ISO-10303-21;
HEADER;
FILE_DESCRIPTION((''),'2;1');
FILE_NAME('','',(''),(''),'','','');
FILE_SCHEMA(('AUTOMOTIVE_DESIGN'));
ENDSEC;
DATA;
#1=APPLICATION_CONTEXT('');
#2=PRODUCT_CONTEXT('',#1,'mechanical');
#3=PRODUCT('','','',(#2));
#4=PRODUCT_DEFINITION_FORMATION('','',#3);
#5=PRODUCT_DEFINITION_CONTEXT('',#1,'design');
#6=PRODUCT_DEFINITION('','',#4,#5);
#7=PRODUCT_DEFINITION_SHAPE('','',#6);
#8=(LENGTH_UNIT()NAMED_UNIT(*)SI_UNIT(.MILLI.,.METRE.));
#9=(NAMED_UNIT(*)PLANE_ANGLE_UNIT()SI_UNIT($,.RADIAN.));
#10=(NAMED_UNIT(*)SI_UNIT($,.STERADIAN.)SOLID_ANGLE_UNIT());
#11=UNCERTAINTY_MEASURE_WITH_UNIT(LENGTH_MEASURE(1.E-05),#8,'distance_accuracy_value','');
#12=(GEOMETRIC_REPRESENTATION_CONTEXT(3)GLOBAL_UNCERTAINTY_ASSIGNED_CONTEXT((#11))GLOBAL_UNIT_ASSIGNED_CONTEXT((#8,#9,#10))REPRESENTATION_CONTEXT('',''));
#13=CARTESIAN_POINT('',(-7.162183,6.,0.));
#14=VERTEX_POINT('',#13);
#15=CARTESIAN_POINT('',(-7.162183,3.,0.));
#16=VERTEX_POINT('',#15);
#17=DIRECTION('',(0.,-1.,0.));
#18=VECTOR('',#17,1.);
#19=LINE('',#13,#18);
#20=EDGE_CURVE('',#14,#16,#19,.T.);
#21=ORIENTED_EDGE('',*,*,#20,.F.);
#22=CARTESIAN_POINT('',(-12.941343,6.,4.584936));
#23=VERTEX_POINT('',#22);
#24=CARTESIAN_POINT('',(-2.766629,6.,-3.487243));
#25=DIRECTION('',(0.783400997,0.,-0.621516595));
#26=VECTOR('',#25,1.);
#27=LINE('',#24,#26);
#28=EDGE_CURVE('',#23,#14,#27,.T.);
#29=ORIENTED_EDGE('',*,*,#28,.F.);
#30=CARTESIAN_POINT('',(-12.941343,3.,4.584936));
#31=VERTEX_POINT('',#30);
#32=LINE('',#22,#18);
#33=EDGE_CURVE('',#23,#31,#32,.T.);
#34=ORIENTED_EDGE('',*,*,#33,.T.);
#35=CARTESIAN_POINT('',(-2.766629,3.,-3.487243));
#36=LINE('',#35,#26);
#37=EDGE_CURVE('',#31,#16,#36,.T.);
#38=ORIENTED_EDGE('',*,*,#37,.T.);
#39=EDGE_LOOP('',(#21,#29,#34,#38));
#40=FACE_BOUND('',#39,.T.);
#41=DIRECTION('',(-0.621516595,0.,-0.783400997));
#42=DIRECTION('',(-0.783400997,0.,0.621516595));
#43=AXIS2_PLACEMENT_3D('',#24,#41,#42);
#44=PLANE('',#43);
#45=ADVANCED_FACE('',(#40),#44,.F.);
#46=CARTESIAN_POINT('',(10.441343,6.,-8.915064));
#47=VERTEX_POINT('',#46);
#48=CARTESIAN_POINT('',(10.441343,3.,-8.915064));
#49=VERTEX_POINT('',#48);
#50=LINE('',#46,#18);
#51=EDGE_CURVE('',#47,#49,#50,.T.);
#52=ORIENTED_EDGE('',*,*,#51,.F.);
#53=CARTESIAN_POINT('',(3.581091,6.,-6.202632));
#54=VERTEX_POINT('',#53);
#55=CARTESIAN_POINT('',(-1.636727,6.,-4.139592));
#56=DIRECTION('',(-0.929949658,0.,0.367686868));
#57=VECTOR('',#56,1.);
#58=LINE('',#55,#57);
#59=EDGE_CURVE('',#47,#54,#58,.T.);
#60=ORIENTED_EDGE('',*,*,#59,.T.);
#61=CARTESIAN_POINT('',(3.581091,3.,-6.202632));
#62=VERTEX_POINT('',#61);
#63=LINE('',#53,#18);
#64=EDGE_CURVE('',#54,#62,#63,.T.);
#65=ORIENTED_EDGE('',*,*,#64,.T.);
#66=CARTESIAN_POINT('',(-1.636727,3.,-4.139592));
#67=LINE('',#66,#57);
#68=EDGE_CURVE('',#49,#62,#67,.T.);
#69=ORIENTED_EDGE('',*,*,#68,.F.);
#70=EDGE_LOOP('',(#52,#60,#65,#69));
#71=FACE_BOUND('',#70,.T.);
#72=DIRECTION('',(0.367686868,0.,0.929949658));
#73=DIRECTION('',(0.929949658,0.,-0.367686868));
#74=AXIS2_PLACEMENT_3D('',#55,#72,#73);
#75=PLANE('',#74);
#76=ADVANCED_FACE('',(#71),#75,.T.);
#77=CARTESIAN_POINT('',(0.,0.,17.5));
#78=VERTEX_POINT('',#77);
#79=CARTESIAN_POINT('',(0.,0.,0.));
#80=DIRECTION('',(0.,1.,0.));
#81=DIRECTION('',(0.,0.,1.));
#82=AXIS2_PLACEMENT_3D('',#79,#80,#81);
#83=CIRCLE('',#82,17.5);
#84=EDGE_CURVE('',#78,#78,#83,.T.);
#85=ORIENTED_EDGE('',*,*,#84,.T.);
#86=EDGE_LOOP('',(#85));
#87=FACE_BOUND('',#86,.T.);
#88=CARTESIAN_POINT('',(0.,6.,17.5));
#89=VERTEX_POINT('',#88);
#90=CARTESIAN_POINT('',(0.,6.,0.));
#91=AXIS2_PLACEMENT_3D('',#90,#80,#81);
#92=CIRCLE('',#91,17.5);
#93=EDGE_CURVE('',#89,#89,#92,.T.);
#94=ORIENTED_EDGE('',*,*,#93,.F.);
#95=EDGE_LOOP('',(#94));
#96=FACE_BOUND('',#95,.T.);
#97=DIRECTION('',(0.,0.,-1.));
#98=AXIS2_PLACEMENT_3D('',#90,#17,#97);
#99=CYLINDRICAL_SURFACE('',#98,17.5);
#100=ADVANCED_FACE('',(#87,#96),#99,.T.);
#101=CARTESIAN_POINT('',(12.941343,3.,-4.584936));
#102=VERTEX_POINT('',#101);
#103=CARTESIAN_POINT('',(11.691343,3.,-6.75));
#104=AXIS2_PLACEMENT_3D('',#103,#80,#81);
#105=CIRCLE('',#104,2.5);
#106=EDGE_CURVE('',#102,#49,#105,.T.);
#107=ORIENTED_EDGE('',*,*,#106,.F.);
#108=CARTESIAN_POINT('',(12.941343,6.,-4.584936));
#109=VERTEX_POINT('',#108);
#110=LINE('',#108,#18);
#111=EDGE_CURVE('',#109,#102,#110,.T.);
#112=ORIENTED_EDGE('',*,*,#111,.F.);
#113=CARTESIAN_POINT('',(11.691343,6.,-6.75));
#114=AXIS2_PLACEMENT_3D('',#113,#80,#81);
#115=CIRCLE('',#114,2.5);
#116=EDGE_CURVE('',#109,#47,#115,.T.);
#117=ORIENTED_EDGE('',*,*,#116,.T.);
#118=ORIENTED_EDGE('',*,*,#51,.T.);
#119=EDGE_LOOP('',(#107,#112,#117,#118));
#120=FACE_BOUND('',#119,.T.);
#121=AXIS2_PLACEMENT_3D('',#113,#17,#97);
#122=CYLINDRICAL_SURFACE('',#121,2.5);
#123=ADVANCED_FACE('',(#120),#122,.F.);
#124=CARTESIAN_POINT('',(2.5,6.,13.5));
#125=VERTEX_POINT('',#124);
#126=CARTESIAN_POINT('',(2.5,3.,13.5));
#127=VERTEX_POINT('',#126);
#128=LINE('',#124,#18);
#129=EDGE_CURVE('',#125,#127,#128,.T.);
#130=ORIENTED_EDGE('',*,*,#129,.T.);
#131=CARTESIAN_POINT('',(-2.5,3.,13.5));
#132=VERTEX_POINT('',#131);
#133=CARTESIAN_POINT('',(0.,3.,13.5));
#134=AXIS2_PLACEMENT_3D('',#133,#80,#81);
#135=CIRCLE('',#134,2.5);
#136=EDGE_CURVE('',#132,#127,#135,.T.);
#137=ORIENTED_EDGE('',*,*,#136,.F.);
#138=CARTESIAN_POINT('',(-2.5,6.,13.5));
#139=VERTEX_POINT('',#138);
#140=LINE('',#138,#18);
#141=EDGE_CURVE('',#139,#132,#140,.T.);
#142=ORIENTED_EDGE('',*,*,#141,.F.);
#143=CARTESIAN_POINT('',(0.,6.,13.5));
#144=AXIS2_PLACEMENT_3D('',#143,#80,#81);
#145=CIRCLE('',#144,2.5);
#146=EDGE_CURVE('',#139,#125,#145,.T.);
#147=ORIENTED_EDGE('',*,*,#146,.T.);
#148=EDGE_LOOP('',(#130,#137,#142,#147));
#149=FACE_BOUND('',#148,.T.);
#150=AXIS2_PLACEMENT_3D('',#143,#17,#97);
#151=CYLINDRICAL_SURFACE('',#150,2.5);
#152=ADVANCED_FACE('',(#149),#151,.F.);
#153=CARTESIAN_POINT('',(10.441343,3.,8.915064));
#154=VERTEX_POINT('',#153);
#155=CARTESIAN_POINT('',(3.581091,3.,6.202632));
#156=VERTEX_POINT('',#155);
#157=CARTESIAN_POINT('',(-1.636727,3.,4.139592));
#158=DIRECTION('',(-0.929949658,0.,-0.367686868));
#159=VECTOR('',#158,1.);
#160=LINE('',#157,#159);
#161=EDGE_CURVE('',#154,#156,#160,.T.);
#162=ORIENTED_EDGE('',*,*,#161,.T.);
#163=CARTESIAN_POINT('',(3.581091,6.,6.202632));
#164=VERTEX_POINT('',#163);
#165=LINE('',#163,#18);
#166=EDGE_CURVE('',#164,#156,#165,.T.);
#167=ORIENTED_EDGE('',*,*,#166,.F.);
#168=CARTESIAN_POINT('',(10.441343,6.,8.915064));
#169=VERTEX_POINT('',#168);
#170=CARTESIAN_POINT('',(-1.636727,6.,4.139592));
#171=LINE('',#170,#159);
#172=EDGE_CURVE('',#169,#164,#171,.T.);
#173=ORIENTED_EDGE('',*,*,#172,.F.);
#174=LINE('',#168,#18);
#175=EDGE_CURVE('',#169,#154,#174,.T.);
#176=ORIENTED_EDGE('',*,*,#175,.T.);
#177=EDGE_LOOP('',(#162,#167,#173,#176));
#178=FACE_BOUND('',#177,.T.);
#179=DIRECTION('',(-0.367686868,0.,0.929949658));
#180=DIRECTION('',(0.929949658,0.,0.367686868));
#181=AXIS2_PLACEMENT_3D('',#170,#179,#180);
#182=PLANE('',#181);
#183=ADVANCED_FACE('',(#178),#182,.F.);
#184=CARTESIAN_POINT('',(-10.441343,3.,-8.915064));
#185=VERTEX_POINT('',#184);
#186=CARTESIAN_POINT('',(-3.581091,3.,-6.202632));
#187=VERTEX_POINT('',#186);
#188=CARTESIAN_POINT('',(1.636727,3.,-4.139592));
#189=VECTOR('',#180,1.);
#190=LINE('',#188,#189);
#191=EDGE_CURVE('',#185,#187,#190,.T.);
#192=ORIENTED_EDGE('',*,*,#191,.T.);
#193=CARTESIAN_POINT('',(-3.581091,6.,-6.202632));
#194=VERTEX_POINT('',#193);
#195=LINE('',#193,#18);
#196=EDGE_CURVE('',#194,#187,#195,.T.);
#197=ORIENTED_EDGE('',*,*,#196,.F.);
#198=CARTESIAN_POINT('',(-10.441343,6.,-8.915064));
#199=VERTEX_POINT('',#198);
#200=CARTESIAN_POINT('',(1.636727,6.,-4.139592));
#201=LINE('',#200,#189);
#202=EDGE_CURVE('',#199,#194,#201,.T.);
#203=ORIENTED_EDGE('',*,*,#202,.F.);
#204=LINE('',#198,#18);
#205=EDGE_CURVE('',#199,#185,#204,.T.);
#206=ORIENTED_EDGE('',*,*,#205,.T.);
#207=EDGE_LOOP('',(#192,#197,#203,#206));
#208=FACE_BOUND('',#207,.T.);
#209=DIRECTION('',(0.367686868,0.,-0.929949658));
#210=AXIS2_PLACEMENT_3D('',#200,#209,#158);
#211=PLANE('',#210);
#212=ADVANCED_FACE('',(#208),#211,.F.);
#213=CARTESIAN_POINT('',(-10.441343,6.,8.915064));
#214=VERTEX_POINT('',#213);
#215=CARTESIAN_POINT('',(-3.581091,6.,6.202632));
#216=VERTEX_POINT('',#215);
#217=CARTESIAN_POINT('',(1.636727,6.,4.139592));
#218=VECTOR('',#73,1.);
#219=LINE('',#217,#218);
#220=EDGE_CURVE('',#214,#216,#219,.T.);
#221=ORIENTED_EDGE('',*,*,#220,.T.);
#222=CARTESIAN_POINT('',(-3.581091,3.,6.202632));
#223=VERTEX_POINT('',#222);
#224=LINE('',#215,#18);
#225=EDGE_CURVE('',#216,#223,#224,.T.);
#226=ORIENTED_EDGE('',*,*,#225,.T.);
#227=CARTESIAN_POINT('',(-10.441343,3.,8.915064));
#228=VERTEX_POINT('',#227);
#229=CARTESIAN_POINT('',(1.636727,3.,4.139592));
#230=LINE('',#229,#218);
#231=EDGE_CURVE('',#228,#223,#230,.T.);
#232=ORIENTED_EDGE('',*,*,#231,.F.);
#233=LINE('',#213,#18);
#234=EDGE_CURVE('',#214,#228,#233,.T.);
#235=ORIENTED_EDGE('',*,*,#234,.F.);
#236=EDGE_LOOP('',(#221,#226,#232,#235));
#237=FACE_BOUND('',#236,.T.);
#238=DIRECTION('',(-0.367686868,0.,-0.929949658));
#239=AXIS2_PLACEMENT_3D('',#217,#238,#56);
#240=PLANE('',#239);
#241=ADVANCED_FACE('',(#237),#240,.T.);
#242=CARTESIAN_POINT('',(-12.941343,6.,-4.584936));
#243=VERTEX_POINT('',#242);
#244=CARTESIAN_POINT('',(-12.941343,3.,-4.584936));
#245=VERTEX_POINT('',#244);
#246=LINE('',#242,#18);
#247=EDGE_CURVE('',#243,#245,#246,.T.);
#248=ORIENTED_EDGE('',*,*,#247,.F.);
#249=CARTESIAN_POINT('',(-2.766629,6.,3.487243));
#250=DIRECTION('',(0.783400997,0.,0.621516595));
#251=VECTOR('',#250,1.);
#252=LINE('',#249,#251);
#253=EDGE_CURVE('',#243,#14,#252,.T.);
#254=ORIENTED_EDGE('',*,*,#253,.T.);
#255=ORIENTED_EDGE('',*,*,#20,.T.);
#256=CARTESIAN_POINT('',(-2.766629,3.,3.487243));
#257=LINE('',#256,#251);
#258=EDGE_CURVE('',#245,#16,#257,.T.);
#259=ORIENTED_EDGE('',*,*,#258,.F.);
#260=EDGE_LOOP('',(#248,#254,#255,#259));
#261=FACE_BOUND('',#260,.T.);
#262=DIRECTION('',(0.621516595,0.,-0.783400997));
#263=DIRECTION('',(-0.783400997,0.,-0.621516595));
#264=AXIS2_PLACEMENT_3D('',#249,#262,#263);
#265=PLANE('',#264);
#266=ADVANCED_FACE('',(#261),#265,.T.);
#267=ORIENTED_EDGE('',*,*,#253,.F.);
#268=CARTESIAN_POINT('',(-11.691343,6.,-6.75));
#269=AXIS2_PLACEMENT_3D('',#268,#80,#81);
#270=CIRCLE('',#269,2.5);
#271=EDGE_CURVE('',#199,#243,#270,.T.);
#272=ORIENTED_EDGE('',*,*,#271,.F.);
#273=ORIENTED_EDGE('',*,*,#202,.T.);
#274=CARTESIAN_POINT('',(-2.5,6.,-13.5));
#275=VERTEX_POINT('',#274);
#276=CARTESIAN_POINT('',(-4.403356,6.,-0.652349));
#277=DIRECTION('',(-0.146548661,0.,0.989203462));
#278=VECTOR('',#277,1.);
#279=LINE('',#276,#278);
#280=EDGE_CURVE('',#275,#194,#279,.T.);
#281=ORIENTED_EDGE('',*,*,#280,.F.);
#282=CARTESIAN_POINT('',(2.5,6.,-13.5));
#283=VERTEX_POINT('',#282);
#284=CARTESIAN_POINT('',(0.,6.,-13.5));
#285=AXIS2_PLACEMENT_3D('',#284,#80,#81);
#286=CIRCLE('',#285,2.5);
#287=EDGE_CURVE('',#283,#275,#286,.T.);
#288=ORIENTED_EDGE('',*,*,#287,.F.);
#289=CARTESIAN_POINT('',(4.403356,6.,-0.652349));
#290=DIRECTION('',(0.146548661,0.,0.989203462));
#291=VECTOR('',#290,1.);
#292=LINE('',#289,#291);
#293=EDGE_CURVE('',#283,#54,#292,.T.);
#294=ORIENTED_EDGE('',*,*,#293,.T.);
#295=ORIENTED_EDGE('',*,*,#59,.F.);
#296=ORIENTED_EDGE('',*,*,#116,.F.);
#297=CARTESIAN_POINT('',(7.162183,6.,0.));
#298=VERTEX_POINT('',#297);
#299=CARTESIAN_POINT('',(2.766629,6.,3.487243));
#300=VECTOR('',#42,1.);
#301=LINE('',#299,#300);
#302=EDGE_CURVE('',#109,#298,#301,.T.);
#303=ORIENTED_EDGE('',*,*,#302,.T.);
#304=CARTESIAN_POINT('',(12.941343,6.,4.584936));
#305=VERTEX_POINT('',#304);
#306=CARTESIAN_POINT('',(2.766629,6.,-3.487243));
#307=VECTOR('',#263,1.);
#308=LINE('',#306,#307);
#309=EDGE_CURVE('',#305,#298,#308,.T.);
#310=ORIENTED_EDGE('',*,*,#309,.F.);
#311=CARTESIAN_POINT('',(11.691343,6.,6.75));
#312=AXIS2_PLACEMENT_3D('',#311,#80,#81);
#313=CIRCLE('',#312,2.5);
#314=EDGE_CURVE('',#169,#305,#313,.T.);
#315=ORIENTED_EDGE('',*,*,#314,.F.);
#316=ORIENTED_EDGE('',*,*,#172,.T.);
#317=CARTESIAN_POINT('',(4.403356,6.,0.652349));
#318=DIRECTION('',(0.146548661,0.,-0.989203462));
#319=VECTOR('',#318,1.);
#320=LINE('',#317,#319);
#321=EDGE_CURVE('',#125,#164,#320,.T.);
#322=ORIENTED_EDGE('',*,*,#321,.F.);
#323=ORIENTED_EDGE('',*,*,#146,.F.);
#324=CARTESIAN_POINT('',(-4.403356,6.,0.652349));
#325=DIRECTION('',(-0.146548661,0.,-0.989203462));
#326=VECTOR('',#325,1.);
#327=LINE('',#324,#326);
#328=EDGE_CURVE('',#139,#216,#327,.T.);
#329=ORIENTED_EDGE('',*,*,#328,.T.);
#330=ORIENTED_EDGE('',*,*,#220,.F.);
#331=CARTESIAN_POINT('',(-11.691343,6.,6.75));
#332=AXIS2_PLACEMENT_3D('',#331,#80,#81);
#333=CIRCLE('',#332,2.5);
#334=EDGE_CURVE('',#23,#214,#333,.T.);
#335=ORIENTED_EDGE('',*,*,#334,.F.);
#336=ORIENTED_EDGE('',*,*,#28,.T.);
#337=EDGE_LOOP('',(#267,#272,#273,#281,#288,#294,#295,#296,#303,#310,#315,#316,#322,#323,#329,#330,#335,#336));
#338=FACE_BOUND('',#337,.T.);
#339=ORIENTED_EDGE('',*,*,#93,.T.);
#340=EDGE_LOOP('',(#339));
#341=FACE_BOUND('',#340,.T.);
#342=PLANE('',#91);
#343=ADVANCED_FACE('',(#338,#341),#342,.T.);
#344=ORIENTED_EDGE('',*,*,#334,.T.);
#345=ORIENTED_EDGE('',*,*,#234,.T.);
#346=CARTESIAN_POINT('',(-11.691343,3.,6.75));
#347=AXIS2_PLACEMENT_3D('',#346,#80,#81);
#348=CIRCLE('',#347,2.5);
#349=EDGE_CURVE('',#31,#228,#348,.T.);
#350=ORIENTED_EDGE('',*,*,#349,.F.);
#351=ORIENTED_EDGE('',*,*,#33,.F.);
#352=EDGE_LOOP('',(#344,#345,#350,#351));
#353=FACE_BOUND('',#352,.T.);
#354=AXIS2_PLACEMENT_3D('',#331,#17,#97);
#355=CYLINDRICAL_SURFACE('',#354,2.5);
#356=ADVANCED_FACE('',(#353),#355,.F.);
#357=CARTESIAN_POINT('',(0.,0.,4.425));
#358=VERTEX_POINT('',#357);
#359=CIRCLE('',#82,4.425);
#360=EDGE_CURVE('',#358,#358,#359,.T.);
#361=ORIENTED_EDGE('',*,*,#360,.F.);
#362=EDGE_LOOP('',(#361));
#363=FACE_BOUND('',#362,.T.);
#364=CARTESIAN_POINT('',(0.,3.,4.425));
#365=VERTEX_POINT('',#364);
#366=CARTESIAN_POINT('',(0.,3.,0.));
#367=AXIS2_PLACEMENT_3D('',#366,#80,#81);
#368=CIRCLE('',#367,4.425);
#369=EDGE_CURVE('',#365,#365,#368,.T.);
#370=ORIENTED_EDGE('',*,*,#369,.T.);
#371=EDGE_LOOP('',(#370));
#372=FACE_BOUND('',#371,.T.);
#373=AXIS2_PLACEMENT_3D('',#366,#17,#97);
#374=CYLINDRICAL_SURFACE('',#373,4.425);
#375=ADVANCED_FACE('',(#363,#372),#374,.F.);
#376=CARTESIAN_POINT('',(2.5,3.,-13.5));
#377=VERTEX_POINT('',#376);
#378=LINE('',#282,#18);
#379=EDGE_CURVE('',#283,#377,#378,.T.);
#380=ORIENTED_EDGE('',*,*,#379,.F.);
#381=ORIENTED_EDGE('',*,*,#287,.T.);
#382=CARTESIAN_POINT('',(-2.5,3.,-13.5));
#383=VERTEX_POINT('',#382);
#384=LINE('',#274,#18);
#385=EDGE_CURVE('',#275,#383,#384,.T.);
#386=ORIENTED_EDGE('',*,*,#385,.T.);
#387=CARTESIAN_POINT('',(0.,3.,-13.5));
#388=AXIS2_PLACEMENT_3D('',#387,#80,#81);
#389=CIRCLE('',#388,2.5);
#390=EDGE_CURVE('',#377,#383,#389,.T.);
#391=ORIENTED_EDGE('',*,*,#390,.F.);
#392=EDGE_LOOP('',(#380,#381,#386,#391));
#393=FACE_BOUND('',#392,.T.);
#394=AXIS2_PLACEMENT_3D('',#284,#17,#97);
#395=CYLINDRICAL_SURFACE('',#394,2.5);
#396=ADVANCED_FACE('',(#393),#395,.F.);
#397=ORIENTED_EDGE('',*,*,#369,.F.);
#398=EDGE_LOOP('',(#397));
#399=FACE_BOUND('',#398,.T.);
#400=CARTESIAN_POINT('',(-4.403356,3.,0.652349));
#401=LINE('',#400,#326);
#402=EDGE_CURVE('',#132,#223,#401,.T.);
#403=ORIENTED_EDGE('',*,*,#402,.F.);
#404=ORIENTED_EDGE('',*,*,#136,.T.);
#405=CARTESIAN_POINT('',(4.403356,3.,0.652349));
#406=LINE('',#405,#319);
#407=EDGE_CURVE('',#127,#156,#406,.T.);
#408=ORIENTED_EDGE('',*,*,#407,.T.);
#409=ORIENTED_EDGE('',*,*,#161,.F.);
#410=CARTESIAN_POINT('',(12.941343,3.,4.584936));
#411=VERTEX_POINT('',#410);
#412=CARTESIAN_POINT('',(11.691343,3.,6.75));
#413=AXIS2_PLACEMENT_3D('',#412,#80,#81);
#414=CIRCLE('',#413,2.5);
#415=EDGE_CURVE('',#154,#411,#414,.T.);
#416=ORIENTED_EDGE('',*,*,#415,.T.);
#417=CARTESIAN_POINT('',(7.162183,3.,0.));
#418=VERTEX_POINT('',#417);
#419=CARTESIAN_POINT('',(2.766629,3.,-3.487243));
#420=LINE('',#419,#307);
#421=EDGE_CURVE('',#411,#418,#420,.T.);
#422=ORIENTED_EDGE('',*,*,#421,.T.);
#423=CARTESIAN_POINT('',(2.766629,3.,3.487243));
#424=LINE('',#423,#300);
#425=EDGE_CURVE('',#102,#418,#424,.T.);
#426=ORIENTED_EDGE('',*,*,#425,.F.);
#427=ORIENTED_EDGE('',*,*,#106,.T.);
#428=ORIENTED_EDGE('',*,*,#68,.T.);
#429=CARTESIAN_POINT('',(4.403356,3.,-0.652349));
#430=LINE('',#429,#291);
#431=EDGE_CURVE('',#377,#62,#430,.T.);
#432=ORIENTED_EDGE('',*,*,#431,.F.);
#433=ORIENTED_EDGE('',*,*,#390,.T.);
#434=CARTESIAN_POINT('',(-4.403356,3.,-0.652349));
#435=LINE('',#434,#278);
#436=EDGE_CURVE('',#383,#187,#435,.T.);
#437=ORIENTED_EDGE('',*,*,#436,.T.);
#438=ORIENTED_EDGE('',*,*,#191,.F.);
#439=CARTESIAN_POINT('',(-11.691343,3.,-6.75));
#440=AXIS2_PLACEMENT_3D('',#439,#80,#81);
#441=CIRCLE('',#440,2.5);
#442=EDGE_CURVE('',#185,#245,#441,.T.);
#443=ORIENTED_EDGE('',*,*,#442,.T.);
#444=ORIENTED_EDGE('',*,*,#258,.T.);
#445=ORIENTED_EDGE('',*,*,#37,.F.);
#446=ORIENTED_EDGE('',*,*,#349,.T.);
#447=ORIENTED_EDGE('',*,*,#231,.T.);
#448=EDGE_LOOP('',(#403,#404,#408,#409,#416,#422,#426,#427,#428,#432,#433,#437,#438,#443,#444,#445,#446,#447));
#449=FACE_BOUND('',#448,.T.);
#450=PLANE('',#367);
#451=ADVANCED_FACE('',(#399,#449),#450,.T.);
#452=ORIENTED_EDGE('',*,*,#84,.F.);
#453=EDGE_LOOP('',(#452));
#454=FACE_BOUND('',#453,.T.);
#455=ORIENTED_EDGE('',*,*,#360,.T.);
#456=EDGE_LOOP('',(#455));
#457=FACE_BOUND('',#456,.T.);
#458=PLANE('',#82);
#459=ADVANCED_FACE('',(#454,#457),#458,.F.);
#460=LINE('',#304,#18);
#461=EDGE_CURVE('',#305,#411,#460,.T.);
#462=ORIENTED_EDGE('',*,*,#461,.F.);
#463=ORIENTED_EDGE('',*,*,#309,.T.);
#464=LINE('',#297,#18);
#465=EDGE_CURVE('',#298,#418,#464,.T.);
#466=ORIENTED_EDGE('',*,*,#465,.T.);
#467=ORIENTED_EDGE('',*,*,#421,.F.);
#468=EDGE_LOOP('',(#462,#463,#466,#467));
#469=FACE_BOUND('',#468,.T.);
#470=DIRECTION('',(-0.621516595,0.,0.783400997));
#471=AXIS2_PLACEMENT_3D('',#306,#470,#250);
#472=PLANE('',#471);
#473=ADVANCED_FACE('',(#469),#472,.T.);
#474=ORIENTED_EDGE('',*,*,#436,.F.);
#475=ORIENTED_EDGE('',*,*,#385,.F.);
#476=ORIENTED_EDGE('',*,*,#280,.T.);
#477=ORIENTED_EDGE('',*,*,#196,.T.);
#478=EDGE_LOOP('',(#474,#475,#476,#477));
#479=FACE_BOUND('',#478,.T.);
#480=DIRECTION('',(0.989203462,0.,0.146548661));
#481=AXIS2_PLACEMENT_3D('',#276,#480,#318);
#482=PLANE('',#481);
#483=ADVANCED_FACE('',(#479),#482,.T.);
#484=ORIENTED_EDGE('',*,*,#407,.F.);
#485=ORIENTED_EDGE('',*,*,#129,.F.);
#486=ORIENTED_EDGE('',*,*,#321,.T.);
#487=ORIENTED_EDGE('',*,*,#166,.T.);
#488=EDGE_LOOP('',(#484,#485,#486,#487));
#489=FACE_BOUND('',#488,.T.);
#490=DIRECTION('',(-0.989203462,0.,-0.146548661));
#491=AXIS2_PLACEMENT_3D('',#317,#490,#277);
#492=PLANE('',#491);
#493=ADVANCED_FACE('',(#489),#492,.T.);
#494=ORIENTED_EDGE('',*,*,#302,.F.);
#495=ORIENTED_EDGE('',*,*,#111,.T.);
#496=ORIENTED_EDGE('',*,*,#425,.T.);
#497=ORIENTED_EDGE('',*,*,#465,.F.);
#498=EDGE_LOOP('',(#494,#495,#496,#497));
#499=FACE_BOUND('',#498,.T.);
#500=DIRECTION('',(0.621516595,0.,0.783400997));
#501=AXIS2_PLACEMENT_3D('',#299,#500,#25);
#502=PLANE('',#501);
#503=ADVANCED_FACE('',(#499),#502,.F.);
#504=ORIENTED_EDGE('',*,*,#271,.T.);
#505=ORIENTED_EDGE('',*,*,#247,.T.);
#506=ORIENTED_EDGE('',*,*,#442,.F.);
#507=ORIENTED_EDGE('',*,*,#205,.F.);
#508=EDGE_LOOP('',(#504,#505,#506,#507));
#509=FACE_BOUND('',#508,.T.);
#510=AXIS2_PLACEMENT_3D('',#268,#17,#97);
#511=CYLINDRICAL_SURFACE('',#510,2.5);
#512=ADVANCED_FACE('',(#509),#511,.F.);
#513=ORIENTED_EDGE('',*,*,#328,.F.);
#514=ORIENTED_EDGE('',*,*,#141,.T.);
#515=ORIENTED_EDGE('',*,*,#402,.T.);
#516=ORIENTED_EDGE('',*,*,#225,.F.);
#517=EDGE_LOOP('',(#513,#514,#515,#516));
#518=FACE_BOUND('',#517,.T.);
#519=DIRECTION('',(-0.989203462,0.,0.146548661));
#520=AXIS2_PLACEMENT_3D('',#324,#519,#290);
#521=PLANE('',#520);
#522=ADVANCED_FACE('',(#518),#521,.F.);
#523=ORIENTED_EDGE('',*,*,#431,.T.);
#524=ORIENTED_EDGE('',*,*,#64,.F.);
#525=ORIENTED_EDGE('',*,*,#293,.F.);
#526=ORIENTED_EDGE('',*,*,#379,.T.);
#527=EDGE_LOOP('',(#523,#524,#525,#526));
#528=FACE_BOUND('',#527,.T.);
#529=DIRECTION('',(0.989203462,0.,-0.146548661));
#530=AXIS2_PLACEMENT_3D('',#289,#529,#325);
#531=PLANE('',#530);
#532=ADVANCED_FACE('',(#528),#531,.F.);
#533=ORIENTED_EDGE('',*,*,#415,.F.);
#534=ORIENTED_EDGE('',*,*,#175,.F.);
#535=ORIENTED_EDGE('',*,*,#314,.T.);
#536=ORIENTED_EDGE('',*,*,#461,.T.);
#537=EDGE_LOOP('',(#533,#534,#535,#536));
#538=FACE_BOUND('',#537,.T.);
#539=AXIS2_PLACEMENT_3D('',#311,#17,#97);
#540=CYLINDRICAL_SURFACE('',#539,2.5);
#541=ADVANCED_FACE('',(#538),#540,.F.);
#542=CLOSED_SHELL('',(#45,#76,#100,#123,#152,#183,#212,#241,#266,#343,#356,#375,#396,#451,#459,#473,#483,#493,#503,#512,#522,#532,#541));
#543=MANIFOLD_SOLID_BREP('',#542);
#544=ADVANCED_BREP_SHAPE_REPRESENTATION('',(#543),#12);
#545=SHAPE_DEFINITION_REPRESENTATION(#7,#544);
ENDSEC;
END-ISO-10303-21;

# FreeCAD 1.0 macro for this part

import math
import FreeCAD as App
import Part
import Sketcher

doc = App.newDocument("Part")
body = doc.addObject("PartDesign::Body", "Body")

sketch1 = body.newObject("Sketcher::SketchObject", "Sketch")
sketch1.AttachmentSupport = (doc.getObject("XZ_Plane"), [""])
sketch1.MapMode = "FlatFace"
sketch1.addGeometry(Part.Circle(App.Vector(0, 0, 0), App.Vector(0, 0, 1), 17.5), False)
sketch1.addGeometry(Part.LineSegment(App.Vector(-3.581091, -6.202632, 0), App.Vector(-2.5, -13.5, 0)), False)
sketch1.addGeometry(Part.ArcOfCircle(Part.Circle(App.Vector(0, -13.5, 0), App.Vector(0, 0, 1), 2.5), math.radians(180), math.radians(270)), False)
sketch1.addGeometry(Part.ArcOfCircle(Part.Circle(App.Vector(0, -13.5, 0), App.Vector(0, 0, 1), 2.5), math.radians(-90), math.radians(0)), False)
sketch1.addGeometry(Part.LineSegment(App.Vector(2.5, -13.5, 0), App.Vector(3.581091, -6.202632, 0)), False)
sketch1.addGeometry(Part.LineSegment(App.Vector(3.581091, -6.202632, 0), App.Vector(10.441343, -8.915064, 0)), False)
sketch1.addGeometry(Part.ArcOfCircle(Part.Circle(App.Vector(11.691343, -6.75, 0), App.Vector(0, 0, 1), 2.5), math.radians(-120), math.radians(-30)), False)
sketch1.addGeometry(Part.ArcOfCircle(Part.Circle(App.Vector(11.691343, -6.75, 0), App.Vector(0, 0, 1), 2.5), math.radians(-30), math.radians(0)), False)
sketch1.addGeometry(Part.ArcOfCircle(Part.Circle(App.Vector(11.691343, -6.75, 0), App.Vector(0, 0, 1), 2.5), math.radians(0), math.radians(60)), False)
sketch1.addGeometry(Part.LineSegment(App.Vector(12.941343, -4.584936, 0), App.Vector(7.162183, 0, 0)), False)
sketch1.addGeometry(Part.LineSegment(App.Vector(7.162183, 0, 0), App.Vector(12.941343, 4.584936, 0)), False)
sketch1.addGeometry(Part.ArcOfCircle(Part.Circle(App.Vector(11.691343, 6.75, 0), App.Vector(0, 0, 1), 2.5), math.radians(-60), math.radians(0)), False)
sketch1.addGeometry(Part.ArcOfCircle(Part.Circle(App.Vector(11.691343, 6.75, 0), App.Vector(0, 0, 1), 2.5), math.radians(0), math.radians(30)), False)
sketch1.addGeometry(Part.ArcOfCircle(Part.Circle(App.Vector(11.691343, 6.75, 0), App.Vector(0, 0, 1), 2.5), math.radians(30), math.radians(120)), False)
sketch1.addGeometry(Part.LineSegment(App.Vector(10.441343, 8.915064, 0), App.Vector(3.581091, 6.202632, 0)), False)
sketch1.addGeometry(Part.LineSegment(App.Vector(3.581091, 6.202632, 0), App.Vector(2.5, 13.5, 0)), False)
sketch1.addGeometry(Part.ArcOfCircle(Part.Circle(App.Vector(0, 13.5, 0), App.Vector(0, 0, 1), 2.5), math.radians(0), math.radians(90)), False)
sketch1.addGeometry(Part.ArcOfCircle(Part.Circle(App.Vector(0, 13.5, 0), App.Vector(0, 0, 1), 2.5), math.radians(90), math.radians(180)), False)
sketch1.addGeometry(Part.LineSegment(App.Vector(-2.5, 13.5, 0), App.Vector(-3.581091, 6.202632, 0)), False)
sketch1.addGeometry(Part.LineSegment(App.Vector(-3.581091, 6.202632, 0), App.Vector(-10.441343, 8.915064, 0)), False)
sketch1.addGeometry(Part.ArcOfCircle(Part.Circle(App.Vector(-11.691343, 6.75, 0), App.Vector(0, 0, 1), 2.5), math.radians(60), math.radians(150)), False)
sketch1.addGeometry(Part.ArcOfCircle(Part.Circle(App.Vector(-11.691343, 6.75, 0), App.Vector(0, 0, 1), 2.5), math.radians(150), math.radians(240)), False)
sketch1.addGeometry(Part.LineSegment(App.Vector(-12.941343, 4.584936, 0), App.Vector(-7.162183, 0, 0)), False)
sketch1.addGeometry(Part.LineSegment(App.Vector(-7.162183, 0, 0), App.Vector(-12.941343, -4.584936, 0)), False)
sketch1.addGeometry(Part.ArcOfCircle(Part.Circle(App.Vector(-11.691343, -6.75, 0), App.Vector(0, 0, 1), 2.5), math.radians(120), math.radians(210)), False)
sketch1.addGeometry(Part.ArcOfCircle(Part.Circle(App.Vector(-11.691343, -6.75, 0), App.Vector(0, 0, 1), 2.5), math.radians(-150), math.radians(-60)), False)
sketch1.addGeometry(Part.LineSegment(App.Vector(-10.441343, -8.915064, 0), App.Vector(-3.581091, -6.202632, 0)), False)
sketch1.addConstraint(Sketcher.Constraint("Coincident", 1, 2, 2, 1))
sketch1.addConstraint(Sketcher.Constraint("Tangent", 2, 2, 3, 1))
sketch1.addConstraint(Sketcher.Constraint("Coincident", 3, 2, 4, 1))
sketch1.addConstraint(Sketcher.Constraint("Coincident", 4, 2, 5, 1))
sketch1.addConstraint(Sketcher.Constraint("Coincident", 5, 2, 6, 1))
sketch1.addConstraint(Sketcher.Constraint("Tangent", 6, 2, 7, 1))
sketch1.addConstraint(Sketcher.Constraint("Tangent", 7, 2, 8, 1))
sketch1.addConstraint(Sketcher.Constraint("Coincident", 8, 2, 9, 1))
sketch1.addConstraint(Sketcher.Constraint("Coincident", 9, 2, 10, 1))
sketch1.addConstraint(Sketcher.Constraint("Coincident", 10, 2, 11, 1))
sketch1.addConstraint(Sketcher.Constraint("Tangent", 11, 2, 12, 1))
sketch1.addConstraint(Sketcher.Constraint("Tangent", 12, 2, 13, 1))
sketch1.addConstraint(Sketcher.Constraint("Coincident", 13, 2, 14, 1))
sketch1.addConstraint(Sketcher.Constraint("Coincident", 14, 2, 15, 1))
sketch1.addConstraint(Sketcher.Constraint("Coincident", 15, 2, 16, 1))
sketch1.addConstraint(Sketcher.Constraint("Tangent", 16, 2, 17, 1))
sketch1.addConstraint(Sketcher.Constraint("Coincident", 17, 2, 18, 1))
sketch1.addConstraint(Sketcher.Constraint("Coincident", 18, 2, 19, 1))
sketch1.addConstraint(Sketcher.Constraint("Coincident", 19, 2, 20, 1))
sketch1.addConstraint(Sketcher.Constraint("Tangent", 20, 2, 21, 1))
sketch1.addConstraint(Sketcher.Constraint("Coincident", 21, 2, 22, 1))
sketch1.addConstraint(Sketcher.Constraint("Coincident", 22, 2, 23, 1))
sketch1.addConstraint(Sketcher.Constraint("Coincident", 23, 2, 24, 1))
sketch1.addConstraint(Sketcher.Constraint("Tangent", 24, 2, 25, 1))
sketch1.addConstraint(Sketcher.Constraint("Coincident", 25, 2, 26, 1))
sketch1.addConstraint(Sketcher.Constraint("Coincident", 26, 2, 1, 1))
sketch1.addConstraint(Sketcher.Constraint("Coincident", 0, 3, -1, 1))
sketch1.addConstraint(Sketcher.Constraint("Coincident", 8, 3, 6, 3))
sketch1.addConstraint(Sketcher.Constraint("Coincident", 13, 3, 11, 3))
sketch1.addConstraint(Sketcher.Constraint("Equal", 2, 3))
sketch1.addConstraint(Sketcher.Constraint("Equal", 3, 6))
sketch1.addConstraint(Sketcher.Constraint("Equal", 8, 11))
sketch1.addConstraint(Sketcher.Constraint("Equal", 13, 16))
sketch1.addConstraint(Sketcher.Constraint("Equal", 16, 17))
sketch1.addConstraint(Sketcher.Constraint("Equal", 17, 20))
sketch1.addConstraint(Sketcher.Constraint("Equal", 20, 21))
sketch1.addConstraint(Sketcher.Constraint("Equal", 21, 24))
sketch1.addConstraint(Sketcher.Constraint("Equal", 24, 25))
sketch1.addConstraint(Sketcher.Constraint("Symmetric", 2, 3, 16, 3, -1, 1))
sketch1.addConstraint(Sketcher.Constraint("Symmetric", 6, 3, 20, 3, -1, 1))
sketch1.addConstraint(Sketcher.Constraint("Symmetric", 11, 3, 24, 3, -1, 1))
sketch1.addConstraint(Sketcher.Constraint("Symmetric", 4, 2, 18, 2, -1, 1))
sketch1.addConstraint(Sketcher.Constraint("Symmetric", 9, 2, 22, 2, -1, 1))
sketch1.addConstraint(Sketcher.Constraint("Symmetric", 14, 2, 26, 2, -1, 1))
sketch1.addConstraint(Sketcher.Constraint("Symmetric", 11, 3, 20, 3, -2))
sketch1.addConstraint(Sketcher.Constraint("Symmetric", 1, 2, 3, 2, -2))
sketch1.addConstraint(Sketcher.Constraint("Symmetric", 14, 2, 18, 2, -2))
sketch1.addConstraint(Sketcher.Constraint("PointOnObject", 2, 2, -2))
sketch1.addConstraint(Sketcher.Constraint("PointOnObject", 9, 2, -1))
sketch1.addConstraint(Sketcher.Constraint("PointOnObject", 16, 2, -2))
sketch1.addConstraint(Sketcher.Constraint("Parallel", 1, 15))
sketch1.addConstraint(Sketcher.Constraint("Parallel", 4, 18))
sketch1.addConstraint(Sketcher.Constraint("Parallel", 5, 19))
sketch1.addConstraint(Sketcher.Constraint("Parallel", 9, 22))
sketch1.addConstraint(Sketcher.Constraint("Parallel", 10, 23))
sketch1.addConstraint(Sketcher.Constraint("Parallel", 14, 26))
sketch1.addConstraint(Sketcher.Constraint("Horizontal", 3, 3, 1, 2))
sketch1.addConstraint(Sketcher.Constraint("Horizontal", 25, 3, 7, 2))
sketch1.addConstraint(Sketcher.Constraint("Horizontal", 21, 3, 11, 2))
sketch1.addConstraint(Sketcher.Constraint("Horizontal", 13, 2, 19, 2))
sketch1.addConstraint(Sketcher.Constraint("Horizontal", 12, 2, 20, 2))
sketch1.addConstraint(Sketcher.Constraint("Horizontal", 10, 2, 21, 2))
sketch1.addConstraint(Sketcher.Constraint("Horizontal", 6, 2, 24, 2))
sketch1.addConstraint(Sketcher.Constraint("Vertical", 6, 2, 12, 2))
sketch1.addConstraint(Sketcher.Constraint("Equal", 4, 5))
sketch1.addConstraint(Sketcher.Constraint("Equal", 5, 9))
sketch1.addConstraint(Sketcher.Constraint("Diameter", 0, 35.0))
sketch1.addConstraint(Sketcher.Constraint("Radius", 2, 2.5))
sketch1.addConstraint(Sketcher.Constraint("DistanceY", 2, 2, -1, 1, 16.0))
sketch1.addConstraint(Sketcher.Constraint("DistanceY", 6, 2, -1, 1, 8.0))
sketch1.addConstraint(Sketcher.Constraint("DistanceY", 8, 3, 11, 3, 13.5))
sketch1.addConstraint(Sketcher.Constraint("DistanceX", 21, 2, 19, 2, 2.5))
sketch1.addConstraint(Sketcher.Constraint("DistanceX", 5, 2, 6, 3, 1.25))
sketch1.addConstraint(Sketcher.Constraint("DistanceX", -1, 1, 4, 2, 3.581091))
sketch1.addConstraint(Sketcher.Constraint("DistanceX", 4, 2, 6, 3, 8.110251))
pad1 = body.newObject("PartDesign::Pad", "Pad")
pad1.Profile = sketch1
pad1.Length = 6
pad1.Reversed = True

sketch2 = body.newObject("Sketcher::SketchObject", "Sketch001")
sketch2.AttachmentSupport = (doc.getObject("XZ_Plane"), [""])
sketch2.MapMode = "FlatFace"
sketch2.addGeometry(Part.LineSegment(App.Vector(-7.162183, 0, 0), App.Vector(-12.941343, 4.584936, 0)), False)
sketch2.addGeometry(Part.ArcOfCircle(Part.Circle(App.Vector(-11.691343, 6.75, 0), App.Vector(0, 0, 1), 2.5), math.radians(150), math.radians(240)), False)
sketch2.addGeometry(Part.ArcOfCircle(Part.Circle(App.Vector(-11.691343, 6.75, 0), App.Vector(0, 0, 1), 2.5), math.radians(60), math.radians(150)), False)
sketch2.addGeometry(Part.LineSegment(App.Vector(-10.441343, 8.915064, 0), App.Vector(-3.581091, 6.202632, 0)), False)
sketch2.addGeometry(Part.LineSegment(App.Vector(-3.581091, 6.202632, 0), App.Vector(-2.5, 13.5, 0)), False)
sketch2.addGeometry(Part.ArcOfCircle(Part.Circle(App.Vector(0, 13.5, 0), App.Vector(0, 0, 1), 2.5), math.radians(90), math.radians(180)), False)
sketch2.addGeometry(Part.ArcOfCircle(Part.Circle(App.Vector(0, 13.5, 0), App.Vector(0, 0, 1), 2.5), math.radians(0), math.radians(90)), False)
sketch2.addGeometry(Part.LineSegment(App.Vector(2.5, 13.5, 0), App.Vector(3.581091, 6.202632, 0)), False)
sketch2.addGeometry(Part.LineSegment(App.Vector(3.581091, 6.202632, 0), App.Vector(10.441343, 8.915064, 0)), False)
sketch2.addGeometry(Part.ArcOfCircle(Part.Circle(App.Vector(11.691343, 6.75, 0), App.Vector(0, 0, 1), 2.5), math.radians(30), math.radians(120)), False)
sketch2.addGeometry(Part.ArcOfCircle(Part.Circle(App.Vector(11.691343, 6.75, 0), App.Vector(0, 0, 1), 2.5), math.radians(0), math.radians(30)), False)
sketch2.addGeometry(Part.ArcOfCircle(Part.Circle(App.Vector(11.691343, 6.75, 0), App.Vector(0, 0, 1), 2.5), math.radians(-60), math.radians(0)), False)
sketch2.addGeometry(Part.LineSegment(App.Vector(12.941343, 4.584936, 0), App.Vector(7.162183, 0, 0)), False)
sketch2.addGeometry(Part.LineSegment(App.Vector(7.162183, 0, 0), App.Vector(12.941343, -4.584936, 0)), False)
sketch2.addGeometry(Part.ArcOfCircle(Part.Circle(App.Vector(11.691343, -6.75, 0), App.Vector(0, 0, 1), 2.5), math.radians(0), math.radians(60)), False)
sketch2.addGeometry(Part.ArcOfCircle(Part.Circle(App.Vector(11.691343, -6.75, 0), App.Vector(0, 0, 1), 2.5), math.radians(-30), math.radians(0)), False)
sketch2.addGeometry(Part.ArcOfCircle(Part.Circle(App.Vector(11.691343, -6.75, 0), App.Vector(0, 0, 1), 2.5), math.radians(-120), math.radians(-30)), False)
sketch2.addGeometry(Part.LineSegment(App.Vector(10.441343, -8.915064, 0), App.Vector(3.581091, -6.202632, 0)), False)
sketch2.addGeometry(Part.LineSegment(App.Vector(3.581091, -6.202632, 0), App.Vector(2.5, -13.5, 0)), False)
sketch2.addGeometry(Part.ArcOfCircle(Part.Circle(App.Vector(0, -13.5, 0), App.Vector(0, 0, 1), 2.5), math.radians(-90), math.radians(0)), False)
sketch2.addGeometry(Part.ArcOfCircle(Part.Circle(App.Vector(0, -13.5, 0), App.Vector(0, 0, 1), 2.5), math.radians(180), math.radians(270)), False)
sketch2.addGeometry(Part.LineSegment(App.Vector(-2.5, -13.5, 0), App.Vector(-3.581091, -6.202632, 0)), False)
sketch2.addGeometry(Part.LineSegment(App.Vector(-3.581091, -6.202632, 0), App.Vector(-10.441343, -8.915064, 0)), False)
sketch2.addGeometry(Part.ArcOfCircle(Part.Circle(App.Vector(-11.691343, -6.75, 0), App.Vector(0, 0, 1), 2.5), math.radians(-150), math.radians(-60)), False)
sketch2.addGeometry(Part.ArcOfCircle(Part.Circle(App.Vector(-11.691343, -6.75, 0), App.Vector(0, 0, 1), 2.5), math.radians(120), math.radians(210)), False)
sketch2.addGeometry(Part.LineSegment(App.Vector(-12.941343, -4.584936, 0), App.Vector(-7.162183, 0, 0)), False)
sketch2.addGeometry(Part.ArcOfCircle(Part.Circle(App.Vector(0, 0, 0), App.Vector(0, 0, 1), 4.425), math.radians(-30), math.radians(0)), False)
sketch2.addGeometry(Part.ArcOfCircle(Part.Circle(App.Vector(0, 0, 0), App.Vector(0, 0, 1), 4.425), math.radians(0), math.radians(30)), False)
sketch2.addGeometry(Part.ArcOfCircle(Part.Circle(App.Vector(0, 0, 0), App.Vector(0, 0, 1), 4.425), math.radians(30), math.radians(90)), False)
sketch2.addGeometry(Part.ArcOfCircle(Part.Circle(App.Vector(0, 0, 0), App.Vector(0, 0, 1), 4.425), math.radians(90), math.radians(150)), False)
sketch2.addGeometry(Part.ArcOfCircle(Part.Circle(App.Vector(0, 0, 0), App.Vector(0, 0, 1), 4.425), math.radians(150), math.radians(210)), False)
sketch2.addGeometry(Part.ArcOfCircle(Part.Circle(App.Vector(0, 0, 0), App.Vector(0, 0, 1), 4.425), math.radians(-150), math.radians(-90)), False)
sketch2.addGeometry(Part.ArcOfCircle(Part.Circle(App.Vector(0, 0, 0), App.Vector(0, 0, 1), 4.425), math.radians(-90), math.radians(-30)), False)
sketch2.addConstraint(Sketcher.Constraint("Coincident", 0, 2, 1, 2))
sketch2.addConstraint(Sketcher.Constraint("Tangent", 1, 1, 2, 2))
sketch2.addConstraint(Sketcher.Constraint("Coincident", 2, 1, 3, 1))
sketch2.addConstraint(Sketcher.Constraint("Coincident", 3, 2, 4, 1))
sketch2.addConstraint(Sketcher.Constraint("Coincident", 4, 2, 5, 2))
sketch2.addConstraint(Sketcher.Constraint("Tangent", 5, 1, 6, 2))
sketch2.addConstraint(Sketcher.Constraint("Coincident", 6, 1, 7, 1))
sketch2.addConstraint(Sketcher.Constraint("Coincident", 7, 2, 8, 1))
sketch2.addConstraint(Sketcher.Constraint("Coincident", 8, 2, 9, 2))
sketch2.addConstraint(Sketcher.Constraint("Tangent", 9, 1, 10, 2))
sketch2.addConstraint(Sketcher.Constraint("Tangent", 10, 1, 11, 2))
sketch2.addConstraint(Sketcher.Constraint("Coincident", 11, 1, 12, 1))
sketch2.addConstraint(Sketcher.Constraint("Coincident", 12, 2, 13, 1))
sketch2.addConstraint(Sketcher.Constraint("Coincident", 13, 2, 14, 2))
sketch2.addConstraint(Sketcher.Constraint("Tangent", 14, 1, 15, 2))
sketch2.addConstraint(Sketcher.Constraint("Tangent", 15, 1, 16, 2))
sketch2.addConstraint(Sketcher.Constraint("Coincident", 16, 1, 17, 1))
sketch2.addConstraint(Sketcher.Constraint("Coincident", 17, 2, 18, 1))
sketch2.addConstraint(Sketcher.Constraint("Coincident", 18, 2, 19, 2))
sketch2.addConstraint(Sketcher.Constraint("Tangent", 19, 1, 20, 2))
sketch2.addConstraint(Sketcher.Constraint("Coincident", 20, 1, 21, 1))
sketch2.addConstraint(Sketcher.Constraint("Coincident", 21, 2, 22, 1))
sketch2.addConstraint(Sketcher.Constraint("Coincident", 22, 2, 23, 2))
sketch2.addConstraint(Sketcher.Constraint("Tangent", 23, 1, 24, 2))
sketch2.addConstraint(Sketcher.Constraint("Coincident", 24, 1, 25, 1))
sketch2.addConstraint(Sketcher.Constraint("Coincident", 25, 2, 0, 1))
sketch2.addConstraint(Sketcher.Constraint("Tangent", 26, 2, 27, 1))
sketch2.addConstraint(Sketcher.Constraint("Tangent", 27, 2, 28, 1))
sketch2.addConstraint(Sketcher.Constraint("Tangent", 28, 2, 29, 1))
sketch2.addConstraint(Sketcher.Constraint("Tangent", 29, 2, 30, 1))
sketch2.addConstraint(Sketcher.Constraint("Tangent", 30, 2, 31, 1))
sketch2.addConstraint(Sketcher.Constraint("Tangent", 31, 2, 32, 1))
sketch2.addConstraint(Sketcher.Constraint("Tangent", 32, 2, 26, 1))
sketch2.addConstraint(Sketcher.Constraint("Coincident", 26, 3, -1, 1))
sketch2.addConstraint(Sketcher.Constraint("Coincident", 28, 3, -1, 1))
sketch2.addConstraint(Sketcher.Constraint("Coincident", 30, 3, -1, 1))
sketch2.addConstraint(Sketcher.Constraint("Coincident", 11, 3, 9, 3))
sketch2.addConstraint(Sketcher.Constraint("Coincident", 16, 3, 14, 3))
sketch2.addConstraint(Sketcher.Constraint("Equal", 1, 2))
sketch2.addConstraint(Sketcher.Constraint("Equal", 2, 5))
sketch2.addConstraint(Sketcher.Constraint("Equal", 5, 6))
sketch2.addConstraint(Sketcher.Constraint("Equal", 6, 9))
sketch2.addConstraint(Sketcher.Constraint("Equal", 11, 14))
sketch2.addConstraint(Sketcher.Constraint("Equal", 16, 19))
sketch2.addConstraint(Sketcher.Constraint("Equal", 19, 20))
sketch2.addConstraint(Sketcher.Constraint("Equal", 20, 23))
sketch2.addConstraint(Sketcher.Constraint("Equal", 23, 24))
sketch2.addConstraint(Sketcher.Constraint("Symmetric", 1, 3, 14, 3, -1, 1))
sketch2.addConstraint(Sketcher.Constraint("Symmetric", 5, 3, 19, 3, -1, 1))
sketch2.addConstraint(Sketcher.Constraint("Symmetric", 9, 3, 23, 3, -1, 1))
sketch2.addConstraint(Sketcher.Constraint("Symmetric", 3, 2, 17, 2, -1, 1))
sketch2.addConstraint(Sketcher.Constraint("Symmetric", 7, 2, 21, 2, -1, 1))
sketch2.addConstraint(Sketcher.Constraint("Symmetric", 12, 2, 25, 2, -1, 1))
sketch2.addConstraint(Sketcher.Constraint("Symmetric", 1, 3, 9, 3, -2))
sketch2.addConstraint(Sketcher.Constraint("Symmetric", 4, 2, 6, 1, -2))
sketch2.addConstraint(Sketcher.Constraint("Symmetric", 3, 2, 7, 2, -2))
sketch2.addConstraint(Sketcher.Constraint("PointOnObject", 5, 1, -2))
sketch2.addConstraint(Sketcher.Constraint("PointOnObject", 12, 2, -1))
sketch2.addConstraint(Sketcher.Constraint("PointOnObject", 19, 1, -2))
sketch2.addConstraint(Sketcher.Constraint("PointOnObject", 26, 2, -1))
sketch2.addConstraint(Sketcher.Constraint("PointOnObject", 28, 2, -2))
sketch2.addConstraint(Sketcher.Constraint("PointOnObject", 31, 2, -2))
sketch2.addConstraint(Sketcher.Constraint("Parallel", 0, 13))
sketch2.addConstraint(Sketcher.Constraint("Parallel", 3, 17))
sketch2.addConstraint(Sketcher.Constraint("Parallel", 4, 18))
sketch2.addConstraint(Sketcher.Constraint("Parallel", 7, 21))
sketch2.addConstraint(Sketcher.Constraint("Parallel", 8, 22))
sketch2.addConstraint(Sketcher.Constraint("Parallel", 12, 25))
sketch2.addConstraint(Sketcher.Constraint("Horizontal", 6, 3, 4, 2))
sketch2.addConstraint(Sketcher.Constraint("Horizontal", 2, 1, 8, 2))
sketch2.addConstraint(Sketcher.Constraint("Horizontal", 1, 1, 9, 1))
sketch2.addConstraint(Sketcher.Constraint("Horizontal", 11, 3, 10, 1))
sketch2.addConstraint(Sketcher.Constraint("Horizontal", 0, 2, 11, 1))
sketch2.addConstraint(Sketcher.Constraint("Horizontal", 24, 3, 14, 1))
sketch2.addConstraint(Sketcher.Constraint("Horizontal", 15, 1, 23, 1))
sketch2.addConstraint(Sketcher.Constraint("Horizontal", 27, 2, 29, 2))
sketch2.addConstraint(Sketcher.Constraint("Horizontal", 30, 2, 32, 2))
sketch2.addConstraint(Sketcher.Constraint("Vertical", 9, 1, 15, 1))
sketch2.addConstraint(Sketcher.Constraint("Vertical", 29, 2, 30, 2))
sketch2.addConstraint(Sketcher.Constraint("Equal", 0, 3))
sketch2.addConstraint(Sketcher.Constraint("Equal", 3, 4))
sketch2.addConstraint(Sketcher.Constraint("Radius", 1, 2.5))
sketch2.addConstraint(Sketcher.Constraint("DistanceY", -1, 1, 1, 1, 8.0))
sketch2.addConstraint(Sketcher.Constraint("DistanceY", -1, 1, 5, 1, 16.0))
sketch2.addConstraint(Sketcher.Constraint("Radius", 26, 4.425))
sketch2.addConstraint(Sketcher.Constraint("DistanceY", 14, 3, 11, 3, 13.5))
sketch2.addConstraint(Sketcher.Constraint("DistanceX", 0, 2, 2, 1, 2.5))
sketch2.addConstraint(Sketcher.Constraint("DistanceX", 0, 2, 1, 3, 1.25))
sketch2.addConstraint(Sketcher.Constraint("DistanceY", -1, 1, 27, 2, 2.2125))
sketch2.addConstraint(Sketcher.Constraint("DistanceX", 3, 2, -1, 1, 3.581091))
sketch2.addConstraint(Sketcher.Constraint("DistanceX", 7, 2, 8, 2, 6.860251))
pad2 = body.newObject("PartDesign::Pad", "Pad001")
pad2.Profile = sketch2
pad2.Length = 3
pad2.Reversed = True

doc.recompute()
